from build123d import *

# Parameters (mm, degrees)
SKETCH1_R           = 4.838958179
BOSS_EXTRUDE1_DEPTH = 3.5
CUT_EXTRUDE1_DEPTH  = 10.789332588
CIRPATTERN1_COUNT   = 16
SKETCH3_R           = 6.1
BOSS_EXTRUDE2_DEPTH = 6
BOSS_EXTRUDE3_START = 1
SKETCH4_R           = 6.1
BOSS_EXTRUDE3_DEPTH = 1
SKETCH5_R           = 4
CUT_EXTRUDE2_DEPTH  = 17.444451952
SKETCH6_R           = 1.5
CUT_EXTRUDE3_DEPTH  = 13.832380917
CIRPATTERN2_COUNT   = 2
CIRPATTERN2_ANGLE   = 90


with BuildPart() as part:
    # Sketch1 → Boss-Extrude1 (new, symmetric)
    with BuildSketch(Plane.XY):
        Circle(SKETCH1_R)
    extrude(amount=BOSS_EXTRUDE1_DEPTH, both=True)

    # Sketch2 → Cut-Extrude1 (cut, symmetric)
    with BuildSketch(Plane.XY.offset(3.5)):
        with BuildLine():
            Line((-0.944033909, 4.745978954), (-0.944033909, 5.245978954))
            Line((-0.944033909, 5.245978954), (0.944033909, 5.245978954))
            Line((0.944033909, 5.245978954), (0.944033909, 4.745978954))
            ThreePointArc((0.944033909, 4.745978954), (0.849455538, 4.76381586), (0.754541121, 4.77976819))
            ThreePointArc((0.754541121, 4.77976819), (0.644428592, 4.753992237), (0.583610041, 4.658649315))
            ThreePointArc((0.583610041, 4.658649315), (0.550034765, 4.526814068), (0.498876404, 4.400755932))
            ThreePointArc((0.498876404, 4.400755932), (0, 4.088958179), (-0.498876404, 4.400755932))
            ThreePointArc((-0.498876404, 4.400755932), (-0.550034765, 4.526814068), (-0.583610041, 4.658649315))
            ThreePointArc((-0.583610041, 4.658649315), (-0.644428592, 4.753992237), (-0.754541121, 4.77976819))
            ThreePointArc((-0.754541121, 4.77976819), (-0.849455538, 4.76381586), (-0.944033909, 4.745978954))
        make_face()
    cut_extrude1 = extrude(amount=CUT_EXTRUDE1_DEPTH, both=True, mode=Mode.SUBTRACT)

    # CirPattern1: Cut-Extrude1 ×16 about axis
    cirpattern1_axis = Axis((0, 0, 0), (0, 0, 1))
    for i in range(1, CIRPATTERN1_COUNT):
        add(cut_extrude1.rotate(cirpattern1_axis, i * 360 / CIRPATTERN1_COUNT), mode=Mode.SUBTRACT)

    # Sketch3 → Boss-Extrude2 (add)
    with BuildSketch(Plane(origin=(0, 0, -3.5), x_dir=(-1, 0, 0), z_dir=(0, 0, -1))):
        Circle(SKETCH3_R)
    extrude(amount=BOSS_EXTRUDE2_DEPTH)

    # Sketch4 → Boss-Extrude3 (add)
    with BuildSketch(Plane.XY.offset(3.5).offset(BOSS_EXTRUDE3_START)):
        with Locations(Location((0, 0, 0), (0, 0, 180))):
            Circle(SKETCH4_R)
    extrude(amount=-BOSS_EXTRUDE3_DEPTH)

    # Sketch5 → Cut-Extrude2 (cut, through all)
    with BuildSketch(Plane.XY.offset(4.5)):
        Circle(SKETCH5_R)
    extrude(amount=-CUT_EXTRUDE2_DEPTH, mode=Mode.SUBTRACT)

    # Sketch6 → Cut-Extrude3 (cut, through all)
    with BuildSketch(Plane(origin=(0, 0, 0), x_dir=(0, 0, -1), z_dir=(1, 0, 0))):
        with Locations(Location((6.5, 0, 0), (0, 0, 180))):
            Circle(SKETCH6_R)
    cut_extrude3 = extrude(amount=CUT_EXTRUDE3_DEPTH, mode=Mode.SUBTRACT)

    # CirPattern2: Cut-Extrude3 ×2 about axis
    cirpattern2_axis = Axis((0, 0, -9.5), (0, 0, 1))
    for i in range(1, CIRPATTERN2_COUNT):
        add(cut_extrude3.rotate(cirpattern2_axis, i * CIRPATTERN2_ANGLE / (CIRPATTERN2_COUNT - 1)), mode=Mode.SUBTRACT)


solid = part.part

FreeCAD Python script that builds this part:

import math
import FreeCAD as App
import Part
import Sketcher

V = App.Vector
Q = App.Units.Quantity

doc = App.newDocument("Part")
params = doc.addObject("Spreadsheet::Sheet", "Params")
for row, (alias, value) in enumerate([
    ("pad1_length", "7 mm"),
    ("sketch2_radius", "1 mm"),
    ("sketch2_radius2", "0.15 mm"),
    ("sketch2_height", "0.5 mm"),
    ("pocket1_length", "21.578665 mm"),
    ("sketch3_diameter", "12.2 mm"),
    ("pad2_length", "6 mm"),
    ("sketch4_diameter", "12.2 mm"),
    ("pad3_length", "1 mm"),
    ("sketch5_diameter", "8 mm"),
    ("sketch6_diameter", "3 mm"),
], start=1):
    params.set(f"A{row}", alias)
    params.set(f"B{row}", "=" + value)
    params.setAlias(f"B{row}", alias)

body = doc.addObject("PartDesign::Body", "Body")

# Sketch on XY plane
sketch1 = body.newObject("Sketcher::SketchObject", "Sketch")
sketch1.AttachmentSupport = (doc.getObject("XY_Plane"), [""])
sketch1.MapMode = "FlatFace"
sketch1.addGeometry(Part.Circle(V(0, 0, 0), V(0, 0, 1), 4.8), False)
sketch1.addConstraint([
    Sketcher.Constraint("Coincident", 0, 3, -1, 1),
    Sketcher.Constraint("Diameter", 0, Q("9.677916 mm")),
])
pad1 = body.newObject("PartDesign::Pad", "Pad")
pad1.Profile = sketch1
pad1.setExpression("Length", "Params.pad1_length")
pad1.Midplane = True

# Sketch on XY plane
sketch2 = body.newObject("Sketcher::SketchObject", "Sketch001")
sketch2.AttachmentSupport = (doc.getObject("XY_Plane"), [""])
sketch2.MapMode = "FlatFace"
sketch2.AttachmentOffset = App.Placement(V(0, 0, 3.5), App.Rotation())
sketch2.addGeometry([
    Part.LineSegment(V(-0.94, 5.25, 0), V(-0.94, 4.75, 0)),  # 0
    Part.ArcOfCircle(Part.Circle(V(0, 0, 0), V(0, 0, 1), 4.84), math.radians(98.97), math.radians(101.25)),  # 1
    Part.ArcOfCircle(Part.Circle(V(-0.73, 4.63, 0), V(0, 0, 1), 0.15), math.radians(10), math.radians(99)),  # 2
    Part.ArcOfCircle(Part.Circle(V(0.4, 4.84, 0), V(0, 0, 1), 1), math.radians(-169.61), math.radians(-154.01)),  # 3
    Part.ArcOfCircle(Part.Circle(V(0, 4.64, 0), V(0, 0, 1), 0.55), math.radians(-154), math.radians(-26)),  # 4
    Part.ArcOfCircle(Part.Circle(V(-0.4, 4.84, 0), V(0, 0, 1), 1), math.radians(-25.99), math.radians(-10.39)),  # 5
    Part.ArcOfCircle(Part.Circle(V(0.73, 4.63, 0), V(0, 0, 1), 0.15), math.radians(81), math.radians(170)),  # 6
    Part.ArcOfCircle(Part.Circle(V(0, 0, 0), V(0, 0, 1), 4.84), math.radians(78.75), math.radians(81.03)),  # 7
    Part.LineSegment(V(0.94, 4.75, 0), V(0.94, 5.25, 0)),  # 8
    Part.LineSegment(V(0.94, 5.25, 0), V(-0.94, 5.25, 0)),  # 9
], False)
sketch2.addConstraint([
    Sketcher.Constraint("Coincident", 0, 2, 1, 2),
    Sketcher.Constraint("Tangent", 1, 1, 2, 2),
    Sketcher.Constraint("Tangent", 2, 1, 3, 1),
    Sketcher.Constraint("Tangent", 3, 2, 4, 1),
    Sketcher.Constraint("Tangent", 4, 2, 5, 1),
    Sketcher.Constraint("Tangent", 5, 2, 6, 2),
    Sketcher.Constraint("Tangent", 6, 1, 7, 2),
    Sketcher.Constraint("Coincident", 7, 1, 8, 1),
    Sketcher.Constraint("Coincident", 8, 2, 9, 1),
    Sketcher.Constraint("Coincident", 9, 2, 0, 1),
    Sketcher.Constraint("Vertical", 0),
    Sketcher.Constraint("Vertical", 8),
    Sketcher.Constraint("Horizontal", 9),
    Sketcher.Constraint("Coincident", 1, 3, -1, 1),
    Sketcher.Constraint("Coincident", 7, 3, -1, 1),
    Sketcher.Constraint("Equal", 3, 5),
    Sketcher.Constraint("Equal", 2, 6),
    Sketcher.Constraint("Equal", 1, 7),
    Sketcher.Constraint("Symmetric", 3, 3, 5, 3, -2),
    Sketcher.Constraint("Horizontal", 0, 2, 7, 1),
    Sketcher.Constraint("Radius", 3, Q("1 mm")),
    Sketcher.Constraint("Radius", 2, Q("0.15 mm")),
    Sketcher.Constraint("DistanceY", 0, 2, 0, 1, Q("0.5 mm")),
    Sketcher.Constraint("Radius", 4, Q("0.555 mm")),
    Sketcher.Constraint("DistanceX", -1, 1, 3, 3, Q("0.4 mm")),
    Sketcher.Constraint("Radius", 1, Q("4.838955 mm")),
    Sketcher.Constraint("DistanceY", 1, 3, 2, 3, Q("4.6316 mm")),
    Sketcher.Constraint("DistanceX", 9, 2, 9, 1, Q("1.888068 mm")),
])
sketch2.setExpression("Constraints[20]", "Params.sketch2_radius")
sketch2.setExpression("Constraints[21]", "Params.sketch2_radius2")
sketch2.setExpression("Constraints[22]", "Params.sketch2_height")
pocket1 = body.newObject("PartDesign::Pocket", "Pocket")
pocket1.Profile = sketch2
pocket1.setExpression("Length", "Params.pocket1_length")
pocket1.Midplane = True
doc.recompute()

polarpattern = body.newObject("PartDesign::PolarPattern", "PolarPattern")
polarpattern.Originals = [pocket1]
polarpattern.Axis = (doc.getObject("Z_Axis"), [""])
polarpattern.Angle = 360
polarpattern.Occurrences = 16
body.Tip = polarpattern

# Sketch on XY plane
sketch3 = body.newObject("Sketcher::SketchObject", "Sketch002")
sketch3.AttachmentSupport = (doc.getObject("XY_Plane"), [""])
sketch3.MapMode = "FlatFace"
sketch3.AttachmentOffset = App.Placement(V(0, 0, -3.5), App.Rotation())
sketch3.addGeometry(Part.Circle(V(0, 0, 0), V(0, 0, 1), 6), False)
sketch3.addConstraint([
    Sketcher.Constraint("Coincident", 0, 3, -1, 1),
    Sketcher.Constraint("Diameter", 0, Q("12.2 mm")),
])
sketch3.setExpression("Constraints[1]", "Params.sketch3_diameter")
pad2 = body.newObject("PartDesign::Pad", "Pad001")
pad2.Profile = sketch3
pad2.setExpression("Length", "Params.pad2_length")
pad2.Reversed = True

# Sketch on XY plane
sketch4 = body.newObject("Sketcher::SketchObject", "Sketch003")
sketch4.AttachmentSupport = (doc.getObject("XY_Plane"), [""])
sketch4.MapMode = "FlatFace"
sketch4.AttachmentOffset = App.Placement(V(0, 0, 4.5), App.Rotation())
sketch4.addGeometry(Part.Circle(V(0, 0, 0), V(0, 0, 1), 6), False)
sketch4.addConstraint([
    Sketcher.Constraint("Coincident", 0, 3, -1, 1),
    Sketcher.Constraint("Diameter", 0, Q("12.2 mm")),
])
sketch4.setExpression("Constraints[1]", "Params.sketch4_diameter")
pad3 = body.newObject("PartDesign::Pad", "Pad002")
pad3.Profile = sketch4
pad3.setExpression("Length", "Params.pad3_length")
pad3.Reversed = True

# Sketch on XY plane
sketch5 = body.newObject("Sketcher::SketchObject", "Sketch004")
sketch5.AttachmentSupport = (doc.getObject("XY_Plane"), [""])
sketch5.MapMode = "FlatFace"
sketch5.AttachmentOffset = App.Placement(V(0, 0, 4.5), App.Rotation())
sketch5.addGeometry(Part.Circle(V(0, 0, 0), V(0, 0, 1), 4), False)
sketch5.addConstraint([
    Sketcher.Constraint("Coincident", 0, 3, -1, 1),
    Sketcher.Constraint("Diameter", 0, Q("8 mm")),
])
sketch5.setExpression("Constraints[1]", "Params.sketch5_diameter")
pocket2 = body.newObject("PartDesign::Pocket", "Pocket001")
pocket2.Profile = sketch5
pocket2.Type = "ThroughAll"

# Sketch on YZ plane
sketch6 = body.newObject("Sketcher::SketchObject", "Sketch005")
sketch6.AttachmentSupport = (doc.getObject("YZ_Plane"), [""])
sketch6.MapMode = "FlatFace"
sketch6.addGeometry(Part.Circle(V(0, -6.5, 0), V(0, 0, 1), 1.5), False)
sketch6.addConstraint([
    Sketcher.Constraint("PointOnObject", 0, 3, -2),
    Sketcher.Constraint("Diameter", 0, Q("3 mm")),
    Sketcher.Constraint("DistanceY", 0, 3, -1, 1, Q("6.5 mm")),
])
sketch6.setExpression("Constraints[1]", "Params.sketch6_diameter")
pocket3 = body.newObject("PartDesign::Pocket", "Pocket002")
pocket3.Profile = sketch6
pocket3.Type = "ThroughAll"
pocket3.Reversed = True
doc.recompute()

polarpattern2 = body.newObject("PartDesign::PolarPattern", "PolarPattern001")
polarpattern2.Originals = [pocket3]
polarpattern2.Axis = (doc.getObject("Z_Axis"), [""])
polarpattern2.Angle = 90
polarpattern2.Occurrences = 2
body.Tip = polarpattern2

doc.recompute()
